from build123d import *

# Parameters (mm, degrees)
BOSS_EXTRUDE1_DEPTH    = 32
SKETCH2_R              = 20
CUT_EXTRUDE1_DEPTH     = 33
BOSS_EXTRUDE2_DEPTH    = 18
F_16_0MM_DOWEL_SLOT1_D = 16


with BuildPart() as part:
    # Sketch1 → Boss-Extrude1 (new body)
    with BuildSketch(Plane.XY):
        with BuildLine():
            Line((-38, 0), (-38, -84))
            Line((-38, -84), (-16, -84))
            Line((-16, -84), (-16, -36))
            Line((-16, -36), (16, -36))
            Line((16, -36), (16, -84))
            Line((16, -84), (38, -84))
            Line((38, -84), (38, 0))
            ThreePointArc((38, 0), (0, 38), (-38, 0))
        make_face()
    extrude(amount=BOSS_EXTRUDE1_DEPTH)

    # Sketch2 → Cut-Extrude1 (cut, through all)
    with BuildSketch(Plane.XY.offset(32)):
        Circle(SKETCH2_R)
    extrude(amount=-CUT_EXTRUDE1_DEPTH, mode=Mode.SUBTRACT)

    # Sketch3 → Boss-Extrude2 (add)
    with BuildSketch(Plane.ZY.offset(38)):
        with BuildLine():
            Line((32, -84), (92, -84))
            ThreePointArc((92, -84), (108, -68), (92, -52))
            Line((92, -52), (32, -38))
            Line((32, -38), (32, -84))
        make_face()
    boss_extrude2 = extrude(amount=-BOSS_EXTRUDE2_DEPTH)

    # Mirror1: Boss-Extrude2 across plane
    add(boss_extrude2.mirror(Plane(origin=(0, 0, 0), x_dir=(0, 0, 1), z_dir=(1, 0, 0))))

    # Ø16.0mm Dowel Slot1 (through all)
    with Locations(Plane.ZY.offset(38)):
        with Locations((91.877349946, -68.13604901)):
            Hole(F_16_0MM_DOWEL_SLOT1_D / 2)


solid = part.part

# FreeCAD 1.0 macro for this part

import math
import FreeCAD as App
import Part
import Sketcher
from FreeCAD import Vector
Q = App.Units.Quantity

doc = App.newDocument("Part")
body = doc.addObject("PartDesign::Body", "Body")

sketch1 = body.newObject("Sketcher::SketchObject", "Sketch")
sketch1.AttachmentSupport = (doc.getObject("XY_Plane"), [""])
sketch1.MapMode = "FlatFace"
sketch1.addGeometry(Part.LineSegment(Vector(-38, 0, 0), Vector(-38, -84, 0)), False)
sketch1.addGeometry(Part.LineSegment(Vector(-38, -84, 0), Vector(-16, -84, 0)), False)
sketch1.addGeometry(Part.LineSegment(Vector(-16, -84, 0), Vector(-16, -36, 0)), False)
sketch1.addGeometry(Part.LineSegment(Vector(-16, -36, 0), Vector(16, -36, 0)), False)
sketch1.addGeometry(Part.LineSegment(Vector(16, -36, 0), Vector(16, -84, 0)), False)
sketch1.addGeometry(Part.LineSegment(Vector(16, -84, 0), Vector(38, -84, 0)), False)
sketch1.addGeometry(Part.LineSegment(Vector(38, -84, 0), Vector(38, 0, 0)), False)
sketch1.addGeometry(Part.ArcOfCircle(Part.Circle(Vector(0, 0, 0), Vector(0, 0, 1), 38), math.radians(0), math.radians(180)), False)
sketch1.addConstraint(Sketcher.Constraint("Coincident", 0, 2, 1, 1))
sketch1.addConstraint(Sketcher.Constraint("Coincident", 1, 2, 2, 1))
sketch1.addConstraint(Sketcher.Constraint("Coincident", 2, 2, 3, 1))
sketch1.addConstraint(Sketcher.Constraint("Coincident", 3, 2, 4, 1))
sketch1.addConstraint(Sketcher.Constraint("Coincident", 4, 2, 5, 1))
sketch1.addConstraint(Sketcher.Constraint("Coincident", 5, 2, 6, 1))
sketch1.addConstraint(Sketcher.Constraint("Tangent", 6, 2, 7, 1))
sketch1.addConstraint(Sketcher.Constraint("Tangent", 7, 2, 0, 1))
sketch1.addConstraint(Sketcher.Constraint("Vertical", 0))
sketch1.addConstraint(Sketcher.Constraint("Horizontal", 1))
sketch1.addConstraint(Sketcher.Constraint("Vertical", 2))
sketch1.addConstraint(Sketcher.Constraint("Horizontal", 3))
sketch1.addConstraint(Sketcher.Constraint("Vertical", 4))
sketch1.addConstraint(Sketcher.Constraint("Horizontal", 5))
sketch1.addConstraint(Sketcher.Constraint("Vertical", 6))
sketch1.addConstraint(Sketcher.Constraint("Coincident", 7, 3, -1, 1))
sketch1.addConstraint(Sketcher.Constraint("Symmetric", 1, 2, 4, 2, -2))
sketch1.addConstraint(Sketcher.Constraint("Radius", 7, Q("38 mm")))
sketch1.addConstraint(Sketcher.Constraint("DistanceX", 1, 1, 1, 2, Q("22 mm")))
sketch1.addConstraint(Sketcher.Constraint("DistanceY", 0, 2, 0, 1, Q("84 mm")))
sketch1.addConstraint(Sketcher.Constraint("DistanceY", 2, 1, 2, 2, Q("48 mm")))
pad1 = body.newObject("PartDesign::Pad", "Pad")
pad1.Profile = sketch1
pad1.Length = 32

sketch2 = body.newObject("Sketcher::SketchObject", "Sketch001")
sketch2.AttachmentSupport = (doc.getObject("XY_Plane"), [""])
sketch2.MapMode = "FlatFace"
sketch2.AttachmentOffset = App.Placement(Vector(0, 0, 32), App.Rotation())
sketch2.addGeometry(Part.Circle(Vector(0, 0, 0), Vector(0, 0, 1), 20), False)
sketch2.addConstraint(Sketcher.Constraint("Coincident", 0, 3, -1, 1))
sketch2.addConstraint(Sketcher.Constraint("Diameter", 0, Q("40 mm")))
pocket1 = body.newObject("PartDesign::Pocket", "Pocket")
pocket1.Profile = sketch2
pocket1.Type = "ThroughAll"

sketch3 = body.newObject("Sketcher::SketchObject", "Sketch002")
sketch3.AttachmentSupport = (doc.getObject("YZ_Plane"), [""])
sketch3.MapMode = "FlatFace"
sketch3.AttachmentOffset = App.Placement(Vector(0, 0, -38), App.Rotation())
sketch3.addGeometry(Part.LineSegment(Vector(-84, 32, 0), Vector(-84, 92, 0)), False)
sketch3.addGeometry(Part.ArcOfCircle(Part.Circle(Vector(-68, 92, 0), Vector(0, 0, 1), 16), math.radians(0), math.radians(180)), False)
sketch3.addGeometry(Part.LineSegment(Vector(-52, 92, 0), Vector(-38, 32, 0)), False)
sketch3.addGeometry(Part.LineSegment(Vector(-38, 32, 0), Vector(-84, 32, 0)), False)
sketch3.addConstraint(Sketcher.Constraint("Tangent", 0, 2, 1, 2))
sketch3.addConstraint(Sketcher.Constraint("Coincident", 1, 1, 2, 1))
sketch3.addConstraint(Sketcher.Constraint("Coincident", 2, 2, 3, 1))
sketch3.addConstraint(Sketcher.Constraint("Coincident", 3, 2, 0, 1))
sketch3.addConstraint(Sketcher.Constraint("Vertical", 0))
sketch3.addConstraint(Sketcher.Constraint("Horizontal", 3))
sketch3.addConstraint(Sketcher.Constraint("Horizontal", 0, 2, 1, 1))
sketch3.addConstraint(Sketcher.Constraint("Radius", 1, Q("16 mm")))
sketch3.addConstraint(Sketcher.Constraint("DistanceX", 3, 2, 3, 1, Q("46 mm")))
sketch3.addConstraint(Sketcher.Constraint("DistanceY", 0, 1, 0, 2, Q("60 mm")))
sketch3.addConstraint(Sketcher.Constraint("DistanceX", 1, 3, -1, 1, Q("68 mm")))
sketch3.addConstraint(Sketcher.Constraint("DistanceY", -1, 1, 1, 3, Q("92 mm")))
pad2 = body.newObject("PartDesign::Pad", "Pad001")
pad2.Profile = sketch3
pad2.Length = 18
doc.recompute()

mirrored = body.newObject("PartDesign::Mirrored", "Mirrored")
mirrored.Originals = [pad2]
mirrored.MirrorPlane = (doc.getObject("YZ_Plane"), [""])
body.Tip = mirrored

sketch4 = body.newObject("Sketcher::SketchObject", "Sketch003")
sketch4.AttachmentSupport = (doc.getObject("YZ_Plane"), [""])
sketch4.MapMode = "FlatFace"
sketch4.AttachmentOffset = App.Placement(Vector(0, 0, -38), App.Rotation())
sketch4.addGeometry(Part.Circle(Vector(-68.136049, 91.87735, 0), Vector(0, 0, 1), 8), False)
sketch4.addConstraint(Sketcher.Constraint("Diameter", 0, Q("16 mm")))
sketch4.addConstraint(Sketcher.Constraint("DistanceX", 0, 3, -1, 1, Q("68.136049 mm")))
sketch4.addConstraint(Sketcher.Constraint("DistanceY", -1, 1, 0, 3, Q("91.87735 mm")))
doc.recompute()
hole = body.newObject("PartDesign::Hole", "Hole")
hole.Profile = sketch4
hole.ThreadType = "None"
hole.Diameter = 16
hole.DepthType = "ThroughAll"
hole.Reversed = True

doc.recompute()
